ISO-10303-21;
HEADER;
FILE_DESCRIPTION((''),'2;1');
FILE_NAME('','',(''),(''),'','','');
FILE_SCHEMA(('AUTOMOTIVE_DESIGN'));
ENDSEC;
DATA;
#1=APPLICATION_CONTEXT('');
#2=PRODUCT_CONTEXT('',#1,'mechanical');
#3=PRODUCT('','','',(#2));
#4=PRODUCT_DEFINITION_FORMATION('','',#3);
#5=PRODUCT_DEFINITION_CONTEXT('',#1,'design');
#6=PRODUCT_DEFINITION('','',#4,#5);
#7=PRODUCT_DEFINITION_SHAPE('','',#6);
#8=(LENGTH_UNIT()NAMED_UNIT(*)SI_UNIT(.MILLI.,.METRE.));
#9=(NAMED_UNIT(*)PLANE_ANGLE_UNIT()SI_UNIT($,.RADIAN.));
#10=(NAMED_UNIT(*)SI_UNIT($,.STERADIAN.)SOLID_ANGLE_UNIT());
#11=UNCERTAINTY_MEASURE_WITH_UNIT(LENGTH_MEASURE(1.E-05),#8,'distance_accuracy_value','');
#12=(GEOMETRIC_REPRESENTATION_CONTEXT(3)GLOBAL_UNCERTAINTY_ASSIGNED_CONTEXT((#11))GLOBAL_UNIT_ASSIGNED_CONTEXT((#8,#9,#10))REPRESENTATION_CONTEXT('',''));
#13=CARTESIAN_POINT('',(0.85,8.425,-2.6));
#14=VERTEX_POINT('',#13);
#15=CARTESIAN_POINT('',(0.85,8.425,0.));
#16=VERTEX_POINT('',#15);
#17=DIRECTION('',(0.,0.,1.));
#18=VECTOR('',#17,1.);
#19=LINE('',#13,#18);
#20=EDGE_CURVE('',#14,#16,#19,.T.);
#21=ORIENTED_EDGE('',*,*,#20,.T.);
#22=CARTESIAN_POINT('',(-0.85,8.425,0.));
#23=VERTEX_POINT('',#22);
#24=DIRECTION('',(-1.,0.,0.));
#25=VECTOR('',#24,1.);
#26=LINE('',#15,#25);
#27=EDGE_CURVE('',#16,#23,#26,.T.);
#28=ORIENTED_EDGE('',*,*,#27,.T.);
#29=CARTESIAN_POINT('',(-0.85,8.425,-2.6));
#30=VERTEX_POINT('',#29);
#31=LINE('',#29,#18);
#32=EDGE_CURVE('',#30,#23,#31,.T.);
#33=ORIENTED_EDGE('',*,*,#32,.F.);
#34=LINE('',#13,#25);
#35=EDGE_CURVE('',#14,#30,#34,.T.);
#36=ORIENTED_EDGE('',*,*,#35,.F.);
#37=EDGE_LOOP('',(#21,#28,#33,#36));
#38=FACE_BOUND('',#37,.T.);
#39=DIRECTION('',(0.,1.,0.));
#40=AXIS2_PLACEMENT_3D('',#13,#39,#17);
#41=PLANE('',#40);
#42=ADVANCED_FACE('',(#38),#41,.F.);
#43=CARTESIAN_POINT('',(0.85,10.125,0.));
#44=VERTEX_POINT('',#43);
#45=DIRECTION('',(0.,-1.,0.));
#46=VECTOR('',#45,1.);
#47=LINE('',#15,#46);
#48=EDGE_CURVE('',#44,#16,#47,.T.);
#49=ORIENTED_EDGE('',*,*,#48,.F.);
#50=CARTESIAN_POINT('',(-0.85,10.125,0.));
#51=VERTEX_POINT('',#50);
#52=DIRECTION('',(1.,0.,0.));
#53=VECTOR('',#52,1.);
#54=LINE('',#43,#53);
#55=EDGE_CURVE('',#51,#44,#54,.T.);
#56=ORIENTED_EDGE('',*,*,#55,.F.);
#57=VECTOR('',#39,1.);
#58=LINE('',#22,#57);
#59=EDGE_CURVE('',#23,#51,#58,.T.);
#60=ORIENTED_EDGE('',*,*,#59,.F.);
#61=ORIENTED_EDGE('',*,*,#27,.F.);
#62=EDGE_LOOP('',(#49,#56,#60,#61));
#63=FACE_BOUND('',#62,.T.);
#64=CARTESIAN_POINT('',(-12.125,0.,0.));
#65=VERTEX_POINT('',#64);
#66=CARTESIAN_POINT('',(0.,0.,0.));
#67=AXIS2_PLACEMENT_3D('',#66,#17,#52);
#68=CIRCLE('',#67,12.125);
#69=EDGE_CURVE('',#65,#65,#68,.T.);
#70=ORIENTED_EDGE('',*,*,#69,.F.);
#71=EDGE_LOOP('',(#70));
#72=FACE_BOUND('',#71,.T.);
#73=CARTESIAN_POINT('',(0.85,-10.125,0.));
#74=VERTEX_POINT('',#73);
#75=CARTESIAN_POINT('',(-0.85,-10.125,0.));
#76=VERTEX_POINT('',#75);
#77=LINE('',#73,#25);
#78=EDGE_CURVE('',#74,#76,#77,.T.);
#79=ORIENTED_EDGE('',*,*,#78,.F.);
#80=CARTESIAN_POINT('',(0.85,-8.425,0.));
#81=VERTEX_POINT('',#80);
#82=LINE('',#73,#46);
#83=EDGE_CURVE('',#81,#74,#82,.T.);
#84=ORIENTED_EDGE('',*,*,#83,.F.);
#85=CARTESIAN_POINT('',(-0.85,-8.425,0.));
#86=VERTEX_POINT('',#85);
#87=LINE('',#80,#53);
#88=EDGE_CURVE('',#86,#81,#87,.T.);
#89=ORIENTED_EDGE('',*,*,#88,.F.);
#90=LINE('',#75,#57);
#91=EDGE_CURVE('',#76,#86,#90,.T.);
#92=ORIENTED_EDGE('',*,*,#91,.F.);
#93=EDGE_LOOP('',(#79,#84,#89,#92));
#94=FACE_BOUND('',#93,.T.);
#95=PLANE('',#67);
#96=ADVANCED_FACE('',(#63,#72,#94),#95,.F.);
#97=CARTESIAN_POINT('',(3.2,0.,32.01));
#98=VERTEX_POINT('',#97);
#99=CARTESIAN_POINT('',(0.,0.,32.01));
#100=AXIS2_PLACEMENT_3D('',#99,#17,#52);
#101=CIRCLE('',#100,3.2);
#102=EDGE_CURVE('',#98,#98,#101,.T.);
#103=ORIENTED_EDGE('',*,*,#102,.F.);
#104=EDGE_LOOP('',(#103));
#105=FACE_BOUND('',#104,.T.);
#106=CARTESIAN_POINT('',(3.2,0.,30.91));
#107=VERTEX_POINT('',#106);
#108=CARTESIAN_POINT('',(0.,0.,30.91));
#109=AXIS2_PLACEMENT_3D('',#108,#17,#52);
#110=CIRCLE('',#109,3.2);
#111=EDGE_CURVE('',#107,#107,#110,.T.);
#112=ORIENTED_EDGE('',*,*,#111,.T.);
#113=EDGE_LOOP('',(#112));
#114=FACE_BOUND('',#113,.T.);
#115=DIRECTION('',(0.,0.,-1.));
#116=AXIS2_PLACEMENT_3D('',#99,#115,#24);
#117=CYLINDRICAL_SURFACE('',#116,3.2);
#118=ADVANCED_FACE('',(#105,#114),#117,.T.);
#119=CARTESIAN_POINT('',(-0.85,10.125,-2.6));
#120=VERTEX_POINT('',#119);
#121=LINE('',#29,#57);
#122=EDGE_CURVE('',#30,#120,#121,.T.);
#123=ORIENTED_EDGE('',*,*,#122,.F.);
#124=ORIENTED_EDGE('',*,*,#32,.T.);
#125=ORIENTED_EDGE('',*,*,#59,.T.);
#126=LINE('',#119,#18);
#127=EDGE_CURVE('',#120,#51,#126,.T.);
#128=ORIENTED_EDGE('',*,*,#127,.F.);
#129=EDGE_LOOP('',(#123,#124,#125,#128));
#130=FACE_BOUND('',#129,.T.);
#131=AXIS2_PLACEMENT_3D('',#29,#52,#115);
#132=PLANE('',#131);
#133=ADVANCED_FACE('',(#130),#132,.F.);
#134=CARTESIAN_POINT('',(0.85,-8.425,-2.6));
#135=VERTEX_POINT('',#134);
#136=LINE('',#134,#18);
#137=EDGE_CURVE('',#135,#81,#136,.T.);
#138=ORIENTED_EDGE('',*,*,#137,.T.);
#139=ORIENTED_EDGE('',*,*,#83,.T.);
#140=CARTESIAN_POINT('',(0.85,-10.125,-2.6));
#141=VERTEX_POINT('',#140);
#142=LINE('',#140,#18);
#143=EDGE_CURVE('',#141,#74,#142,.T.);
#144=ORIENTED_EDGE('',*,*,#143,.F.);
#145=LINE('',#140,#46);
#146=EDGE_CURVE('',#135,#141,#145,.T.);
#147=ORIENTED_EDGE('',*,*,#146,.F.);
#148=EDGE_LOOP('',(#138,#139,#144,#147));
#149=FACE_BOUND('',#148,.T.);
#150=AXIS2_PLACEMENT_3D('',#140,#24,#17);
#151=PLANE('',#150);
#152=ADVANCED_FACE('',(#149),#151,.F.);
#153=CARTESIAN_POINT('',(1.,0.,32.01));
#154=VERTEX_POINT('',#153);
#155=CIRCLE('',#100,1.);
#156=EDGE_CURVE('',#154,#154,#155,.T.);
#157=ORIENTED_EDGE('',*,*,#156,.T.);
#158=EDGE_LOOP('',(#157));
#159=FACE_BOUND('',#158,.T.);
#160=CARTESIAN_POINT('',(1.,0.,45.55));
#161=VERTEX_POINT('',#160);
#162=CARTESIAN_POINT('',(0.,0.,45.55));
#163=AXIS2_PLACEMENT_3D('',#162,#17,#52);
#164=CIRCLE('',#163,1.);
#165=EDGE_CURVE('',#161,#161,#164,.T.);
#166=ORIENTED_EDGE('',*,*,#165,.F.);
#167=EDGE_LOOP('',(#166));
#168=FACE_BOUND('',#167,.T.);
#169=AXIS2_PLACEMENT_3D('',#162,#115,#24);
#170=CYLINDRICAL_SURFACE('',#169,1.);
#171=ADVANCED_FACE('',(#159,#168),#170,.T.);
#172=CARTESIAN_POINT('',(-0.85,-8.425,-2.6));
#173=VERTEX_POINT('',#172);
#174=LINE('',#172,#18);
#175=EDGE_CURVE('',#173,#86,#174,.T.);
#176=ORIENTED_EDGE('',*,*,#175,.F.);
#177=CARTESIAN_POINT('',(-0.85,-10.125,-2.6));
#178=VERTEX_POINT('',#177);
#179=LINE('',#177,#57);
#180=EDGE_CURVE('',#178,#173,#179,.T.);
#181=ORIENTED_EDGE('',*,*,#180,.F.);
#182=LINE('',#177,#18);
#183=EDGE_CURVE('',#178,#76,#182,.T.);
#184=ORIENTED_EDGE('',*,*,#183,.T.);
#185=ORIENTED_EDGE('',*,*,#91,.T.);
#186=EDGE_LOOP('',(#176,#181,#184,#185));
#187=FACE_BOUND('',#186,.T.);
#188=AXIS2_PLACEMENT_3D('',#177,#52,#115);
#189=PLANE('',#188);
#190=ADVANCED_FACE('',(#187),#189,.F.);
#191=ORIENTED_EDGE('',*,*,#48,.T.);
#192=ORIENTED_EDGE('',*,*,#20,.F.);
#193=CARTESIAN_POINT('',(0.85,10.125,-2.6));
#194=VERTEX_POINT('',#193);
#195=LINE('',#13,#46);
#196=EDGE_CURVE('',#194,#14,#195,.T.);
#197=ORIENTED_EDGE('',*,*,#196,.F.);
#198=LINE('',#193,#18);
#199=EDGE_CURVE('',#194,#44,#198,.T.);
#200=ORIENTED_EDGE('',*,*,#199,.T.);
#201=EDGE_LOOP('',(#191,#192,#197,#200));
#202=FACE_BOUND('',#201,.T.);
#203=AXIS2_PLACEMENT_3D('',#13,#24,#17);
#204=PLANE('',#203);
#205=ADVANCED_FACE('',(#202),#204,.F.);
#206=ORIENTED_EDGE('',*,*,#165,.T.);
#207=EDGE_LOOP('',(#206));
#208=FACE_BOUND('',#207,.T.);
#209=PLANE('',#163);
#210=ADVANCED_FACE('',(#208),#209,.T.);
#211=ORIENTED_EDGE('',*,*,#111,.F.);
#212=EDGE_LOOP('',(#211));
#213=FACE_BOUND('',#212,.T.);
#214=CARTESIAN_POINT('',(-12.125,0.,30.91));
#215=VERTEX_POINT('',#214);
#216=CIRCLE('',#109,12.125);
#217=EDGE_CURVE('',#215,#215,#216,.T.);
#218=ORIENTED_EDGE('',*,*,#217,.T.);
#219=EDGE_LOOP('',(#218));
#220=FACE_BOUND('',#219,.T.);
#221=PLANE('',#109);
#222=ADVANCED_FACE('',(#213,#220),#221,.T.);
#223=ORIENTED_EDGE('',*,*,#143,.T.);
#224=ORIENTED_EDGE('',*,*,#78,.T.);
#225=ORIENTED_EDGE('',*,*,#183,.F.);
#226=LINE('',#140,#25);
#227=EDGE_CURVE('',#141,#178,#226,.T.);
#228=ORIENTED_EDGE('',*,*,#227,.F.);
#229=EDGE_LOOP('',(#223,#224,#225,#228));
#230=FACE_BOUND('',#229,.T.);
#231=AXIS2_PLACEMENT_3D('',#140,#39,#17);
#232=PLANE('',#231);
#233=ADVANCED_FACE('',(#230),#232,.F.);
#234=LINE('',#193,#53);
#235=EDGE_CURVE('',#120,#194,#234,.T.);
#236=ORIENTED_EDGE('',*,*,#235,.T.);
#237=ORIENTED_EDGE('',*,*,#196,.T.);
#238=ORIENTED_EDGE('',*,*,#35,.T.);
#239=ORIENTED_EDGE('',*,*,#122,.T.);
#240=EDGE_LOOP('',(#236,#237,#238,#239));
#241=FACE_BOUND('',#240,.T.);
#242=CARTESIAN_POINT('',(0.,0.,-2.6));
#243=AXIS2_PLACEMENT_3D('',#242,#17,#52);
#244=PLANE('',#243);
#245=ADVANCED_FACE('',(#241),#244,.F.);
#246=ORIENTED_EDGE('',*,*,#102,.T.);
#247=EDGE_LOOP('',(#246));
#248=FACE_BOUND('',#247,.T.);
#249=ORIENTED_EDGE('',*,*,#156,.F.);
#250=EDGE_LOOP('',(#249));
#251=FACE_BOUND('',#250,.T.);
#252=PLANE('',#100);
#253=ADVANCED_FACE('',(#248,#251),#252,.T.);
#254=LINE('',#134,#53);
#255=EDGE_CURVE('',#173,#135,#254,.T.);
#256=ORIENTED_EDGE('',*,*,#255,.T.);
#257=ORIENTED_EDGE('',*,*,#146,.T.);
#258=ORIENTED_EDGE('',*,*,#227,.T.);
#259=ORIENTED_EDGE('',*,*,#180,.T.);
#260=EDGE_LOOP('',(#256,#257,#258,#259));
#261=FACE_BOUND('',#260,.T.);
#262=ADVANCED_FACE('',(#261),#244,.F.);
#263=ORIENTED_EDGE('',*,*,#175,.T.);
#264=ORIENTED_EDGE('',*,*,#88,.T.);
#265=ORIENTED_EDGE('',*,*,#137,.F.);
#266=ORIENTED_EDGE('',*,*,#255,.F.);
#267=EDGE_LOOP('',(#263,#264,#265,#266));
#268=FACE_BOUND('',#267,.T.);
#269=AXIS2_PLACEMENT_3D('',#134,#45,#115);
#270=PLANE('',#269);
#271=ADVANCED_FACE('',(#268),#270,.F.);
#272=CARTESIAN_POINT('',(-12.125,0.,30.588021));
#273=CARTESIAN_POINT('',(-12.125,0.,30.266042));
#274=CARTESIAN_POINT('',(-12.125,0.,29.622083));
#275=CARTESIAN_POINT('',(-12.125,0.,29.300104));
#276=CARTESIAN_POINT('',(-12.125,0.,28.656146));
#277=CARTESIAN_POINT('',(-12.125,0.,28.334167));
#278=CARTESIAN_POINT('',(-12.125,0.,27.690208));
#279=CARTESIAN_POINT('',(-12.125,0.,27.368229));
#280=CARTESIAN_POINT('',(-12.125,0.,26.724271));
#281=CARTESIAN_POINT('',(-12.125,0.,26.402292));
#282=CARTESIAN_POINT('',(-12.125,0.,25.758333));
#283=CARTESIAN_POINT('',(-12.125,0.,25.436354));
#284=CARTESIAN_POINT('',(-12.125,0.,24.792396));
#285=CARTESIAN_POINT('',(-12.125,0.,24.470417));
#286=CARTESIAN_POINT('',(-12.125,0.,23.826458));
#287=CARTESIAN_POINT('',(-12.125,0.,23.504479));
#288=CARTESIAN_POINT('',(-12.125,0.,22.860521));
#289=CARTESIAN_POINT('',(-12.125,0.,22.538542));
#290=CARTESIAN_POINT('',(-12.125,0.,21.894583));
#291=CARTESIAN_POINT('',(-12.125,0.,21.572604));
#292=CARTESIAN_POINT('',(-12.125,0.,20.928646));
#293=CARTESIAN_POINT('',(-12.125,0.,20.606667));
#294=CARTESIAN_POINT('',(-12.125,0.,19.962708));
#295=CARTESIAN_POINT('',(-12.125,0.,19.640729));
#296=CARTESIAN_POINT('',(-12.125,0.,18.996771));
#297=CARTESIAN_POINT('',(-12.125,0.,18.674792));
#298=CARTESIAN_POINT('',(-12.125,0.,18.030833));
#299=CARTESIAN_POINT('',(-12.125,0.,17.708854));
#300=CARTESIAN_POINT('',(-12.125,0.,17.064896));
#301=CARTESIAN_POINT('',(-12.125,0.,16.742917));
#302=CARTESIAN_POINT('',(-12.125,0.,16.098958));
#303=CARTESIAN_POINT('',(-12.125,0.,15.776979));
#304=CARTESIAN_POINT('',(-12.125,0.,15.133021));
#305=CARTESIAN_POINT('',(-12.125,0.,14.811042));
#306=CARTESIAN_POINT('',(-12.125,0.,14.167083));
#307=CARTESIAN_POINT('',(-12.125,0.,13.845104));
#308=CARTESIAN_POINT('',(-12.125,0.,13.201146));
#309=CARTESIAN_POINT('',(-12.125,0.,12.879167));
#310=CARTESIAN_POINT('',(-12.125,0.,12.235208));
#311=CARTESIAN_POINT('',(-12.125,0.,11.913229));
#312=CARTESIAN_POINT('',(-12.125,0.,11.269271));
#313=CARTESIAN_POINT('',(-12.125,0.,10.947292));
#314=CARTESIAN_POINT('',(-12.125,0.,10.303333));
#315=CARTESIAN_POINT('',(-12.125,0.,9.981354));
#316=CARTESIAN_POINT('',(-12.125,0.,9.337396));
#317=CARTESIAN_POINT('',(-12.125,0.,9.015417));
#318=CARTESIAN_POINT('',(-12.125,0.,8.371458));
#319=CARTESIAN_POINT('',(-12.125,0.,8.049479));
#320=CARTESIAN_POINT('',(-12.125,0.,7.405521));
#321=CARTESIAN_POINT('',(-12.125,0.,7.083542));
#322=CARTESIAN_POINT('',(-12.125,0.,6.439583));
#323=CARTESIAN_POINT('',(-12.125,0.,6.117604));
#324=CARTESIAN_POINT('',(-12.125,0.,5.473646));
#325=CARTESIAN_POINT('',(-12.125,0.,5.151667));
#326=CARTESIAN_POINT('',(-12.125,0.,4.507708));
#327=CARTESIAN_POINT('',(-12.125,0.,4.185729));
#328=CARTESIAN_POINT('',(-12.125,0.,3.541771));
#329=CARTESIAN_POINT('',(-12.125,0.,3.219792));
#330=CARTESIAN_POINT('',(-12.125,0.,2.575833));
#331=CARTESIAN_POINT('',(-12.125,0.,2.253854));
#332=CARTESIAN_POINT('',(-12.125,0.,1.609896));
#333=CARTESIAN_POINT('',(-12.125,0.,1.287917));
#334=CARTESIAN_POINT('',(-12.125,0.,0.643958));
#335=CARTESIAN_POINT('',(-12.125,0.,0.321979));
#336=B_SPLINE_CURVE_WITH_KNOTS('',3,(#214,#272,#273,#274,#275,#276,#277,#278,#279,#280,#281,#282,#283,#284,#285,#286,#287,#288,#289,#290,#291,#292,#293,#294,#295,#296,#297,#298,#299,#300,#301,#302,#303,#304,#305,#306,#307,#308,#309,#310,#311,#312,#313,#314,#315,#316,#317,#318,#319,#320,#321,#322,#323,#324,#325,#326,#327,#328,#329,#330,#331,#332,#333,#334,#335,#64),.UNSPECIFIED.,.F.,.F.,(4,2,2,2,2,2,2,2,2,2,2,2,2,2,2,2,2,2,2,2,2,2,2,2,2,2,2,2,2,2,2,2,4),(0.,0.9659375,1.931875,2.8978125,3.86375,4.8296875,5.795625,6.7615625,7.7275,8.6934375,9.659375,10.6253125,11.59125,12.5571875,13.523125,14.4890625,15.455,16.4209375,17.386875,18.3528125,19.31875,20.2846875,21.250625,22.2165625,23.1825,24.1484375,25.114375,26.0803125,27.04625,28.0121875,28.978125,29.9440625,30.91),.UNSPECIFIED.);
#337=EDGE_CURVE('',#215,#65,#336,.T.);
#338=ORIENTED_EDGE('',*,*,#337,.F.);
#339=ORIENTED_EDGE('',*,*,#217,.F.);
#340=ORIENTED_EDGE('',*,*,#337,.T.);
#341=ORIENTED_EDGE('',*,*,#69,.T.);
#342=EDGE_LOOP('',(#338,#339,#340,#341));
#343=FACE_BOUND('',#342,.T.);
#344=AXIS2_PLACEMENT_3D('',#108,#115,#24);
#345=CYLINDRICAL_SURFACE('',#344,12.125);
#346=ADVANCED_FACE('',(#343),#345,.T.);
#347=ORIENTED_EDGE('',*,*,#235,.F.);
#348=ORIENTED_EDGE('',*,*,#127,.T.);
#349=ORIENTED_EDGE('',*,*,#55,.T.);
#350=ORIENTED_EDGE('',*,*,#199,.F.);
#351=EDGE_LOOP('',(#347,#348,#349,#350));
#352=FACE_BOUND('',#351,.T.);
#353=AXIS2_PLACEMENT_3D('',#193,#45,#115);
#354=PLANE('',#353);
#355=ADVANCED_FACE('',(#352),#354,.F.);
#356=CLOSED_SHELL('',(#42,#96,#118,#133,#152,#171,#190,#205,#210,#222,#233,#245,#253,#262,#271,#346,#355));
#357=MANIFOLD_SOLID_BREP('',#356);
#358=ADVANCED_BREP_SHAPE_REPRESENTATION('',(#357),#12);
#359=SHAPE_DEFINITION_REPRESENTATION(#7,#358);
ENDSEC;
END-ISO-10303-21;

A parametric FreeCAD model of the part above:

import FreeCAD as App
import Part
import Sketcher

V = App.Vector


def add_polygon(sketch, points):
    """Adds a closed chain of lines whose ends are joined by coincident constraints."""
    first, n = sketch.GeometryCount, len(points)
    for a, b in zip(points, points[1:] + points[:1]):
        sketch.addGeometry(Part.LineSegment(App.Vector(*a, 0), App.Vector(*b, 0)), False)
    for i in range(n):
        sketch.addConstraint(Sketcher.Constraint("Coincident", first + i, 2, first + (i + 1) % n, 1))

doc = App.newDocument("Part")
params = doc.addObject("Spreadsheet::Sheet", "Params")
for row, (alias, value) in enumerate([
    ("sketch1_diameter", "24.25 mm"),
    ("pad1_length", "30.91 mm"),
    ("sketch2_diameter", "6.4 mm"),
    ("pad2_length", "1.1 mm"),
    ("sketch3_diameter", "2 mm"),
    ("pad3_length", "13.54 mm"),
    ("sketch4_width", "1.7 mm"),
    ("pad4_length", "2.6 mm"),
], start=1):
    params.set(f"A{row}", alias)
    params.set(f"B{row}", "=" + value)
    params.setAlias(f"B{row}", alias)

body = doc.addObject("PartDesign::Body", "Body")

# Sketch on XY plane
sketch1 = doc.addObject("Sketcher::SketchObject", "Sketch")
body.addObject(sketch1)
sketch1.AttachmentSupport = (doc.XY_Plane, [""])
sketch1.MapMode = "FlatFace"
sketch1.addGeometry(Part.Circle(V(0, 0, 0), V(0, 0, 1), 12), False)
sketch1.addConstraint(Sketcher.Constraint("Coincident", 0, 3, -1, 1))
sketch1.addConstraint(Sketcher.Constraint("Diameter", 0, 24.25))
sketch1.setExpression("Constraints[1]", "Params.sketch1_diameter")
pad1 = doc.addObject("PartDesign::Pad", "Pad")
body.addObject(pad1)
pad1.Profile = sketch1
pad1.setExpression("Length", "Params.pad1_length")

# Sketch on XY plane
sketch2 = doc.addObject("Sketcher::SketchObject", "Sketch001")
body.addObject(sketch2)
sketch2.AttachmentSupport = (doc.XY_Plane, [""])
sketch2.MapMode = "FlatFace"
sketch2.AttachmentOffset = App.Placement(V(0, 0, 30.91), App.Rotation())
sketch2.addGeometry(Part.Circle(V(0, 0, 0), V(0, 0, 1), 3.2), False)
sketch2.addConstraint(Sketcher.Constraint("Coincident", 0, 3, -1, 1))
sketch2.addConstraint(Sketcher.Constraint("Diameter", 0, 6.4))
sketch2.setExpression("Constraints[1]", "Params.sketch2_diameter")
pad2 = doc.addObject("PartDesign::Pad", "Pad001")
body.addObject(pad2)
pad2.Profile = sketch2
pad2.setExpression("Length", "Params.pad2_length")

# Sketch on XY plane
sketch3 = doc.addObject("Sketcher::SketchObject", "Sketch002")
body.addObject(sketch3)
sketch3.AttachmentSupport = (doc.XY_Plane, [""])
sketch3.MapMode = "FlatFace"
sketch3.AttachmentOffset = App.Placement(V(0, 0, 32.01), App.Rotation())
sketch3.addGeometry(Part.Circle(V(0, 0, 0), V(0, 0, 1), 1), False)
sketch3.addConstraint(Sketcher.Constraint("Coincident", 0, 3, -1, 1))
sketch3.addConstraint(Sketcher.Constraint("Diameter", 0, 2.0))
sketch3.setExpression("Constraints[1]", "Params.sketch3_diameter")
pad3 = doc.addObject("PartDesign::Pad", "Pad002")
body.addObject(pad3)
pad3.Profile = sketch3
pad3.setExpression("Length", "Params.pad3_length")

# Sketch on XY plane
sketch4 = doc.addObject("Sketcher::SketchObject", "Sketch003")
body.addObject(sketch4)
sketch4.AttachmentSupport = (doc.XY_Plane, [""])
sketch4.MapMode = "FlatFace"
add_polygon(sketch4, [(0.8, -8.4), (0.8, -10.1), (-0.8, -10.1), (-0.8, -8.4)])  # lines 0-3
add_polygon(sketch4, [(0.8, 10.1), (0.8, 8.4), (-0.8, 8.4), (-0.8, 10.1)])  # lines 4-7
sketch4.addConstraint(Sketcher.Constraint("Vertical", 0))
sketch4.addConstraint(Sketcher.Constraint("Horizontal", 1))
sketch4.addConstraint(Sketcher.Constraint("Vertical", 2))
sketch4.addConstraint(Sketcher.Constraint("Horizontal", 3))
sketch4.addConstraint(Sketcher.Constraint("Vertical", 4))
sketch4.addConstraint(Sketcher.Constraint("Horizontal", 5))
sketch4.addConstraint(Sketcher.Constraint("Vertical", 6))
sketch4.addConstraint(Sketcher.Constraint("Horizontal", 7))
sketch4.addConstraint(Sketcher.Constraint("Symmetric", 2, 2, 4, 2, -1, 1))
sketch4.addConstraint(Sketcher.Constraint("Symmetric", 0, 2, 6, 2, -1, 1))
sketch4.addConstraint(Sketcher.Constraint("Vertical", 3, 2, 4, 2))
sketch4.addConstraint(Sketcher.Constraint("Equal", 7, 0))
sketch4.addConstraint(Sketcher.Constraint("DistanceX", 1, 2, 1, 1, 1.7))
sketch4.addConstraint(Sketcher.Constraint("DistanceY", 3, 2, 4, 2, 16.85))
sketch4.setExpression("Constraints[20]", "Params.sketch4_width")
pad4 = doc.addObject("PartDesign::Pad", "Pad003")
body.addObject(pad4)
pad4.Profile = sketch4
pad4.setExpression("Length", "Params.pad4_length")
pad4.Reversed = True

doc.recompute()
